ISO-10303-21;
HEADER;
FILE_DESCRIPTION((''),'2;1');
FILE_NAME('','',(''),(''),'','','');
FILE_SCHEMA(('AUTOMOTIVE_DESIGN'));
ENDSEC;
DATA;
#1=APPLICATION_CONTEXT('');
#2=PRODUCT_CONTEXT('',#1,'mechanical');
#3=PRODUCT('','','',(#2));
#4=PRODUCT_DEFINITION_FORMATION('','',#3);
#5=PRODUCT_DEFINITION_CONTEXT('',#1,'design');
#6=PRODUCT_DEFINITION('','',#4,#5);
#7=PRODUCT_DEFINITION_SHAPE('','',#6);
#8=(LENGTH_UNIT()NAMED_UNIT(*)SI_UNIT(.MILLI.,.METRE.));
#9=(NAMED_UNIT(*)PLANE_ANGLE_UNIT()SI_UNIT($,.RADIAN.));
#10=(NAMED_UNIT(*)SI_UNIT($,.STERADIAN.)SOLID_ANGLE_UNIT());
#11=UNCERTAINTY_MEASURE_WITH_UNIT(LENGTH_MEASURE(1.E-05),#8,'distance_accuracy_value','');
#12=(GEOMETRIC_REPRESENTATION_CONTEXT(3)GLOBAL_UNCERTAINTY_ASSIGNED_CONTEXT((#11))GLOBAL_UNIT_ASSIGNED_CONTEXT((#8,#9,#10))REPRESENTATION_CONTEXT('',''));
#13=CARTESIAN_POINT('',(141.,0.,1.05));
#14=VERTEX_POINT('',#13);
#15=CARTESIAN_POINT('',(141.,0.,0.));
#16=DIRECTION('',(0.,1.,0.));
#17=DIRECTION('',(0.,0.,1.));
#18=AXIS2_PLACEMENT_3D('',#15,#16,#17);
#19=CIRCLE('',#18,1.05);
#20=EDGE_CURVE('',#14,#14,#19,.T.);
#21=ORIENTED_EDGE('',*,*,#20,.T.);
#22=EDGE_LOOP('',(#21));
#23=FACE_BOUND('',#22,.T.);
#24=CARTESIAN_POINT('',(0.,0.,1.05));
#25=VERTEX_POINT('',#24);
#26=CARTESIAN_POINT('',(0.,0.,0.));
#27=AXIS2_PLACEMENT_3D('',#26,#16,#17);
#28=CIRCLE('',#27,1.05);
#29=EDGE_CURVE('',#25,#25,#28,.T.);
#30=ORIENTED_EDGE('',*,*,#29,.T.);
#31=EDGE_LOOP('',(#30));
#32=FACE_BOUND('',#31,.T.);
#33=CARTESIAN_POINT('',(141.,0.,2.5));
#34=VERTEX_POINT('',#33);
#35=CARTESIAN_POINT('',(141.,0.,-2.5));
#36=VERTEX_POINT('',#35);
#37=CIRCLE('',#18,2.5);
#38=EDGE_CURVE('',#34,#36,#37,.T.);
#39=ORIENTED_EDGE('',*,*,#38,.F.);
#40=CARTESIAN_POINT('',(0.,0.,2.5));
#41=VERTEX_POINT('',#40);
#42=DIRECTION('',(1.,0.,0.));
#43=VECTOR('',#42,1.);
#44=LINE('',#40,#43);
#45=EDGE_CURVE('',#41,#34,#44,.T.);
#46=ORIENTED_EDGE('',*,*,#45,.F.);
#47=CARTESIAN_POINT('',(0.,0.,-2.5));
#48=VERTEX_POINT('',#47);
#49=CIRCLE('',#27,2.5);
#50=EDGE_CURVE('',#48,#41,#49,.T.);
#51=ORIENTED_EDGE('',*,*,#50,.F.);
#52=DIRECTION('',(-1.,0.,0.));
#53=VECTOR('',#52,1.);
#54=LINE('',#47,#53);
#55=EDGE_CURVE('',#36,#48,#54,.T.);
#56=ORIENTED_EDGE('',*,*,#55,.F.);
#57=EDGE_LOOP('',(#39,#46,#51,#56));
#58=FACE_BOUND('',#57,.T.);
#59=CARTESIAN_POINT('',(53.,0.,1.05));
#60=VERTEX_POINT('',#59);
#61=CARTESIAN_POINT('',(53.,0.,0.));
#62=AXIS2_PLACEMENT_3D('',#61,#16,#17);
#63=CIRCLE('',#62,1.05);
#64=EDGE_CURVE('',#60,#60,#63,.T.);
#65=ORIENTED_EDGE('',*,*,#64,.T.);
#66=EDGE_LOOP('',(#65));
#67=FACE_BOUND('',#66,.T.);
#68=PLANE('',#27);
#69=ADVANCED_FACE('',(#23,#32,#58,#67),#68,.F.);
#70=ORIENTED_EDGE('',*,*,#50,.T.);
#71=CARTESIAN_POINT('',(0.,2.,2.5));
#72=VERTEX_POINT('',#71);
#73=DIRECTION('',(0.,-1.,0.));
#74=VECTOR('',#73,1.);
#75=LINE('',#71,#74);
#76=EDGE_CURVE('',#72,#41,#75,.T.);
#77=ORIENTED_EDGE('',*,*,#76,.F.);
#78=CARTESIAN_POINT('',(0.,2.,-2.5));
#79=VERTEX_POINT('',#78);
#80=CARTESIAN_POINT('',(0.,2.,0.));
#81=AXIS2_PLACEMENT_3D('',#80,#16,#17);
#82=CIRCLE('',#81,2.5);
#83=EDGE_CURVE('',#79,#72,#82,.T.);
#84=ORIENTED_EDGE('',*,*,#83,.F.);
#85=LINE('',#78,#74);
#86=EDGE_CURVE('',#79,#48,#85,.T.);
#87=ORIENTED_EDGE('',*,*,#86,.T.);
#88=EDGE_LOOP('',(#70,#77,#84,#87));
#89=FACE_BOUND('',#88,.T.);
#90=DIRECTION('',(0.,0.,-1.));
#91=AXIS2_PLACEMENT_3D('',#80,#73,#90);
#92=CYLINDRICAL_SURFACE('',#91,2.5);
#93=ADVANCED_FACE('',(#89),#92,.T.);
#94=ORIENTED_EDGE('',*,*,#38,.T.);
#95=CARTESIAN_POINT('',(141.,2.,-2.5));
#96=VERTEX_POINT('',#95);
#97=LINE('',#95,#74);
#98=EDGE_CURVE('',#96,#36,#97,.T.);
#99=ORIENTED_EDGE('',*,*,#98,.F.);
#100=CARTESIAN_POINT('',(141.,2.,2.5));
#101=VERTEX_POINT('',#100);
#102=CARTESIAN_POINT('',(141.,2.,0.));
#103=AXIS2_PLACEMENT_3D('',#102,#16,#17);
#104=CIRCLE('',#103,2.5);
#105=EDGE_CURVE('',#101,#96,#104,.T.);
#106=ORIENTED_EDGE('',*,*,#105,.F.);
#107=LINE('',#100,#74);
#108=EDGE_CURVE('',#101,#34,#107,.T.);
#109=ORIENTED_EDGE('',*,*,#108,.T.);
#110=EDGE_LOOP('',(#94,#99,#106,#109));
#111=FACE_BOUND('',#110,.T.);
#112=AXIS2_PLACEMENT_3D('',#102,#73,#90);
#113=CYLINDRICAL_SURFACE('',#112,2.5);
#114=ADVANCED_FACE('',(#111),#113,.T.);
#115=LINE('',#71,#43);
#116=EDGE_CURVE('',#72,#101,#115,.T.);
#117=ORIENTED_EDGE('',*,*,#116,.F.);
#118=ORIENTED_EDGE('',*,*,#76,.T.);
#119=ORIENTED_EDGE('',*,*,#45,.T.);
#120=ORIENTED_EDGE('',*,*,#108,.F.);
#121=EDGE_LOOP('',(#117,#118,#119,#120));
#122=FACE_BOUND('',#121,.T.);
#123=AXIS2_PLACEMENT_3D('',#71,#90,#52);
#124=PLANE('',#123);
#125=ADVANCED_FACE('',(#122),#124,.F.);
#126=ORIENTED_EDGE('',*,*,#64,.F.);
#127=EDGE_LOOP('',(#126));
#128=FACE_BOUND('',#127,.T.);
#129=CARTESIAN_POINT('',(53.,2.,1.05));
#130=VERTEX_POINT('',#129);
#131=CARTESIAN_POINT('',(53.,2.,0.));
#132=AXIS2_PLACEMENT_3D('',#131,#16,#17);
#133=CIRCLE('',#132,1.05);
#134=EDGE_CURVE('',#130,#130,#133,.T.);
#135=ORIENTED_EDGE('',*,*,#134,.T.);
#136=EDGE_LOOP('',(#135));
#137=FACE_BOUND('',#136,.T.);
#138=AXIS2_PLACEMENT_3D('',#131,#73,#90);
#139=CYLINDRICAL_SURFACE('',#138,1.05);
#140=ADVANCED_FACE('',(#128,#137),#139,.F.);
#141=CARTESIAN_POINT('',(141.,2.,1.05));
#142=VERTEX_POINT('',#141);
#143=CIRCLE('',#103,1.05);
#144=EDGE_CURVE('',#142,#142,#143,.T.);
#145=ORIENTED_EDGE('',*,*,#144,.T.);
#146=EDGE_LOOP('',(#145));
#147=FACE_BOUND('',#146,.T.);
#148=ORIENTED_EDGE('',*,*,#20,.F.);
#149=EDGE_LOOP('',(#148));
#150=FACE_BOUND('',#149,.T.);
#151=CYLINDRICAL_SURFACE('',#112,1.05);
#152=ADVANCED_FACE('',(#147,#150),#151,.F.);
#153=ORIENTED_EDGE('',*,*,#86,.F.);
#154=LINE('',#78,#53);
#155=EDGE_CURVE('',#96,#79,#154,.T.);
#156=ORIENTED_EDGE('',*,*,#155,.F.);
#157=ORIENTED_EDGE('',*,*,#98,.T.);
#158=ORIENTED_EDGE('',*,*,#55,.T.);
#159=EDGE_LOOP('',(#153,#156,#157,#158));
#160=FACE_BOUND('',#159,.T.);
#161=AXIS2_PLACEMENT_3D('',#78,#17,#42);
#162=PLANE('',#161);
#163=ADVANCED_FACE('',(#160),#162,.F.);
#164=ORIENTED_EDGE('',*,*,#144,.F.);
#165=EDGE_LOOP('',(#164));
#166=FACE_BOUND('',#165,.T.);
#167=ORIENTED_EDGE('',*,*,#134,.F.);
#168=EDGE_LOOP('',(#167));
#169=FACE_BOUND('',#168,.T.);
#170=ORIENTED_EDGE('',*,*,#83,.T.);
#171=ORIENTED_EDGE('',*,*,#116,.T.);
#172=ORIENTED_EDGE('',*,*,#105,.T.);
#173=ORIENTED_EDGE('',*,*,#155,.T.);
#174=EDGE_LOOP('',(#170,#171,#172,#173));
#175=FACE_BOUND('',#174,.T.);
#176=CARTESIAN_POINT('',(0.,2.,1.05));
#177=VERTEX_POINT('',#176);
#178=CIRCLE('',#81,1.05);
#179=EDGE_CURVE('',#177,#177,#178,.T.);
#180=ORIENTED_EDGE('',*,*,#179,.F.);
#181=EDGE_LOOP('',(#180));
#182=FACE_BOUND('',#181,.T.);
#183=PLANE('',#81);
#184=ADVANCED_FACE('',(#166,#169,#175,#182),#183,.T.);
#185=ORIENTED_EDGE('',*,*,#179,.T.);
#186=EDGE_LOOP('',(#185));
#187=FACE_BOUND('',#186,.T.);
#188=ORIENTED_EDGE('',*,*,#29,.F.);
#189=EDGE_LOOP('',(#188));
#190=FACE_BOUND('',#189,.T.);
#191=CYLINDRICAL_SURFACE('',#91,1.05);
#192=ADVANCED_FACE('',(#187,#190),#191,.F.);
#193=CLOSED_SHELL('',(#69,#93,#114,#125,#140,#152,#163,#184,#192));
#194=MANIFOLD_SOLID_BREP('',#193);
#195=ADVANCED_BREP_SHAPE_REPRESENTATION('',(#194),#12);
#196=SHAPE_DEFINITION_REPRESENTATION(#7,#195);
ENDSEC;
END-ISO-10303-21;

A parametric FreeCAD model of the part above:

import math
import FreeCAD as App
import Part
import Sketcher
from FreeCAD import Vector
Q = App.Units.Quantity

doc = App.newDocument("Part")
params = doc.addObject("Spreadsheet::Sheet", "Params")
for row, (alias, value) in enumerate([
    ("sketch1_diameter", "2.1 mm"),
    ("sketch1_radius", "2.5 mm"),
    ("sketch1_width", "141 mm"),
    ("pad1_length", "2 mm"),
], start=1):
    params.set(f"A{row}", alias)
    params.set(f"B{row}", "=" + value)
    params.setAlias(f"B{row}", alias)

body = doc.addObject("PartDesign::Body", "Body")

# Sketch on XZ plane
sketch1 = body.newObject("Sketcher::SketchObject", "Sketch")
sketch1.AttachmentSupport = (doc.getObject("XZ_Plane"), [""])
sketch1.MapMode = "FlatFace"
sketch1.addGeometry([
    Part.LineSegment(Vector(141, -2.5, 0), Vector(0, -2.5, 0)),  # 0
    Part.ArcOfCircle(Part.Circle(Vector(0, 0, 0), Vector(0, 0, 1), 2.5), math.radians(90), math.radians(270)),  # 1
    Part.LineSegment(Vector(0, 2.5, 0), Vector(141, 2.5, 0)),  # 2
    Part.ArcOfCircle(Part.Circle(Vector(141, 0, 0), Vector(0, 0, 1), 2.5), math.radians(-90), math.radians(90)),  # 3
    Part.Circle(Vector(141, 0, 0), Vector(0, 0, 1), 1.05),  # 4
    Part.Circle(Vector(53, 0, 0), Vector(0, 0, 1), 1.05),  # 5
    Part.Circle(Vector(0, 0, 0), Vector(0, 0, 1), 1.05),  # 6
], False)
sketch1.addConstraint([
    Sketcher.Constraint("Tangent", 0, 2, 1, 2),
    Sketcher.Constraint("Tangent", 1, 1, 2, 1),
    Sketcher.Constraint("Tangent", 2, 2, 3, 2),
    Sketcher.Constraint("Tangent", 3, 1, 0, 1),
    Sketcher.Constraint("Horizontal", 0),
    Sketcher.Constraint("Horizontal", 2),
    Sketcher.Constraint("Coincident", 1, 3, -1, 1),
    Sketcher.Constraint("Coincident", 6, 3, -1, 1),
    Sketcher.Constraint("Coincident", 4, 3, 3, 3),
    Sketcher.Constraint("Equal", 4, 5),
    Sketcher.Constraint("Equal", 5, 6),
    Sketcher.Constraint("PointOnObject", 5, 3, -1),
    Sketcher.Constraint("Diameter", 4, Q("2.1 mm")),
    Sketcher.Constraint("Radius", 1, Q("2.5 mm")),
    Sketcher.Constraint("DistanceX", 0, 2, 0, 1, Q("141 mm")),
    Sketcher.Constraint("DistanceX", -1, 1, 5, 3, Q("53 mm")),
])
sketch1.setExpression("Constraints[12]", "Params.sketch1_diameter")
sketch1.setExpression("Constraints[13]", "Params.sketch1_radius")
sketch1.setExpression("Constraints[14]", "Params.sketch1_width")
pad1 = body.newObject("PartDesign::Pad", "Pad")
pad1.Profile = sketch1
pad1.setExpression("Length", "Params.pad1_length")
pad1.Reversed = True

doc.recompute()
